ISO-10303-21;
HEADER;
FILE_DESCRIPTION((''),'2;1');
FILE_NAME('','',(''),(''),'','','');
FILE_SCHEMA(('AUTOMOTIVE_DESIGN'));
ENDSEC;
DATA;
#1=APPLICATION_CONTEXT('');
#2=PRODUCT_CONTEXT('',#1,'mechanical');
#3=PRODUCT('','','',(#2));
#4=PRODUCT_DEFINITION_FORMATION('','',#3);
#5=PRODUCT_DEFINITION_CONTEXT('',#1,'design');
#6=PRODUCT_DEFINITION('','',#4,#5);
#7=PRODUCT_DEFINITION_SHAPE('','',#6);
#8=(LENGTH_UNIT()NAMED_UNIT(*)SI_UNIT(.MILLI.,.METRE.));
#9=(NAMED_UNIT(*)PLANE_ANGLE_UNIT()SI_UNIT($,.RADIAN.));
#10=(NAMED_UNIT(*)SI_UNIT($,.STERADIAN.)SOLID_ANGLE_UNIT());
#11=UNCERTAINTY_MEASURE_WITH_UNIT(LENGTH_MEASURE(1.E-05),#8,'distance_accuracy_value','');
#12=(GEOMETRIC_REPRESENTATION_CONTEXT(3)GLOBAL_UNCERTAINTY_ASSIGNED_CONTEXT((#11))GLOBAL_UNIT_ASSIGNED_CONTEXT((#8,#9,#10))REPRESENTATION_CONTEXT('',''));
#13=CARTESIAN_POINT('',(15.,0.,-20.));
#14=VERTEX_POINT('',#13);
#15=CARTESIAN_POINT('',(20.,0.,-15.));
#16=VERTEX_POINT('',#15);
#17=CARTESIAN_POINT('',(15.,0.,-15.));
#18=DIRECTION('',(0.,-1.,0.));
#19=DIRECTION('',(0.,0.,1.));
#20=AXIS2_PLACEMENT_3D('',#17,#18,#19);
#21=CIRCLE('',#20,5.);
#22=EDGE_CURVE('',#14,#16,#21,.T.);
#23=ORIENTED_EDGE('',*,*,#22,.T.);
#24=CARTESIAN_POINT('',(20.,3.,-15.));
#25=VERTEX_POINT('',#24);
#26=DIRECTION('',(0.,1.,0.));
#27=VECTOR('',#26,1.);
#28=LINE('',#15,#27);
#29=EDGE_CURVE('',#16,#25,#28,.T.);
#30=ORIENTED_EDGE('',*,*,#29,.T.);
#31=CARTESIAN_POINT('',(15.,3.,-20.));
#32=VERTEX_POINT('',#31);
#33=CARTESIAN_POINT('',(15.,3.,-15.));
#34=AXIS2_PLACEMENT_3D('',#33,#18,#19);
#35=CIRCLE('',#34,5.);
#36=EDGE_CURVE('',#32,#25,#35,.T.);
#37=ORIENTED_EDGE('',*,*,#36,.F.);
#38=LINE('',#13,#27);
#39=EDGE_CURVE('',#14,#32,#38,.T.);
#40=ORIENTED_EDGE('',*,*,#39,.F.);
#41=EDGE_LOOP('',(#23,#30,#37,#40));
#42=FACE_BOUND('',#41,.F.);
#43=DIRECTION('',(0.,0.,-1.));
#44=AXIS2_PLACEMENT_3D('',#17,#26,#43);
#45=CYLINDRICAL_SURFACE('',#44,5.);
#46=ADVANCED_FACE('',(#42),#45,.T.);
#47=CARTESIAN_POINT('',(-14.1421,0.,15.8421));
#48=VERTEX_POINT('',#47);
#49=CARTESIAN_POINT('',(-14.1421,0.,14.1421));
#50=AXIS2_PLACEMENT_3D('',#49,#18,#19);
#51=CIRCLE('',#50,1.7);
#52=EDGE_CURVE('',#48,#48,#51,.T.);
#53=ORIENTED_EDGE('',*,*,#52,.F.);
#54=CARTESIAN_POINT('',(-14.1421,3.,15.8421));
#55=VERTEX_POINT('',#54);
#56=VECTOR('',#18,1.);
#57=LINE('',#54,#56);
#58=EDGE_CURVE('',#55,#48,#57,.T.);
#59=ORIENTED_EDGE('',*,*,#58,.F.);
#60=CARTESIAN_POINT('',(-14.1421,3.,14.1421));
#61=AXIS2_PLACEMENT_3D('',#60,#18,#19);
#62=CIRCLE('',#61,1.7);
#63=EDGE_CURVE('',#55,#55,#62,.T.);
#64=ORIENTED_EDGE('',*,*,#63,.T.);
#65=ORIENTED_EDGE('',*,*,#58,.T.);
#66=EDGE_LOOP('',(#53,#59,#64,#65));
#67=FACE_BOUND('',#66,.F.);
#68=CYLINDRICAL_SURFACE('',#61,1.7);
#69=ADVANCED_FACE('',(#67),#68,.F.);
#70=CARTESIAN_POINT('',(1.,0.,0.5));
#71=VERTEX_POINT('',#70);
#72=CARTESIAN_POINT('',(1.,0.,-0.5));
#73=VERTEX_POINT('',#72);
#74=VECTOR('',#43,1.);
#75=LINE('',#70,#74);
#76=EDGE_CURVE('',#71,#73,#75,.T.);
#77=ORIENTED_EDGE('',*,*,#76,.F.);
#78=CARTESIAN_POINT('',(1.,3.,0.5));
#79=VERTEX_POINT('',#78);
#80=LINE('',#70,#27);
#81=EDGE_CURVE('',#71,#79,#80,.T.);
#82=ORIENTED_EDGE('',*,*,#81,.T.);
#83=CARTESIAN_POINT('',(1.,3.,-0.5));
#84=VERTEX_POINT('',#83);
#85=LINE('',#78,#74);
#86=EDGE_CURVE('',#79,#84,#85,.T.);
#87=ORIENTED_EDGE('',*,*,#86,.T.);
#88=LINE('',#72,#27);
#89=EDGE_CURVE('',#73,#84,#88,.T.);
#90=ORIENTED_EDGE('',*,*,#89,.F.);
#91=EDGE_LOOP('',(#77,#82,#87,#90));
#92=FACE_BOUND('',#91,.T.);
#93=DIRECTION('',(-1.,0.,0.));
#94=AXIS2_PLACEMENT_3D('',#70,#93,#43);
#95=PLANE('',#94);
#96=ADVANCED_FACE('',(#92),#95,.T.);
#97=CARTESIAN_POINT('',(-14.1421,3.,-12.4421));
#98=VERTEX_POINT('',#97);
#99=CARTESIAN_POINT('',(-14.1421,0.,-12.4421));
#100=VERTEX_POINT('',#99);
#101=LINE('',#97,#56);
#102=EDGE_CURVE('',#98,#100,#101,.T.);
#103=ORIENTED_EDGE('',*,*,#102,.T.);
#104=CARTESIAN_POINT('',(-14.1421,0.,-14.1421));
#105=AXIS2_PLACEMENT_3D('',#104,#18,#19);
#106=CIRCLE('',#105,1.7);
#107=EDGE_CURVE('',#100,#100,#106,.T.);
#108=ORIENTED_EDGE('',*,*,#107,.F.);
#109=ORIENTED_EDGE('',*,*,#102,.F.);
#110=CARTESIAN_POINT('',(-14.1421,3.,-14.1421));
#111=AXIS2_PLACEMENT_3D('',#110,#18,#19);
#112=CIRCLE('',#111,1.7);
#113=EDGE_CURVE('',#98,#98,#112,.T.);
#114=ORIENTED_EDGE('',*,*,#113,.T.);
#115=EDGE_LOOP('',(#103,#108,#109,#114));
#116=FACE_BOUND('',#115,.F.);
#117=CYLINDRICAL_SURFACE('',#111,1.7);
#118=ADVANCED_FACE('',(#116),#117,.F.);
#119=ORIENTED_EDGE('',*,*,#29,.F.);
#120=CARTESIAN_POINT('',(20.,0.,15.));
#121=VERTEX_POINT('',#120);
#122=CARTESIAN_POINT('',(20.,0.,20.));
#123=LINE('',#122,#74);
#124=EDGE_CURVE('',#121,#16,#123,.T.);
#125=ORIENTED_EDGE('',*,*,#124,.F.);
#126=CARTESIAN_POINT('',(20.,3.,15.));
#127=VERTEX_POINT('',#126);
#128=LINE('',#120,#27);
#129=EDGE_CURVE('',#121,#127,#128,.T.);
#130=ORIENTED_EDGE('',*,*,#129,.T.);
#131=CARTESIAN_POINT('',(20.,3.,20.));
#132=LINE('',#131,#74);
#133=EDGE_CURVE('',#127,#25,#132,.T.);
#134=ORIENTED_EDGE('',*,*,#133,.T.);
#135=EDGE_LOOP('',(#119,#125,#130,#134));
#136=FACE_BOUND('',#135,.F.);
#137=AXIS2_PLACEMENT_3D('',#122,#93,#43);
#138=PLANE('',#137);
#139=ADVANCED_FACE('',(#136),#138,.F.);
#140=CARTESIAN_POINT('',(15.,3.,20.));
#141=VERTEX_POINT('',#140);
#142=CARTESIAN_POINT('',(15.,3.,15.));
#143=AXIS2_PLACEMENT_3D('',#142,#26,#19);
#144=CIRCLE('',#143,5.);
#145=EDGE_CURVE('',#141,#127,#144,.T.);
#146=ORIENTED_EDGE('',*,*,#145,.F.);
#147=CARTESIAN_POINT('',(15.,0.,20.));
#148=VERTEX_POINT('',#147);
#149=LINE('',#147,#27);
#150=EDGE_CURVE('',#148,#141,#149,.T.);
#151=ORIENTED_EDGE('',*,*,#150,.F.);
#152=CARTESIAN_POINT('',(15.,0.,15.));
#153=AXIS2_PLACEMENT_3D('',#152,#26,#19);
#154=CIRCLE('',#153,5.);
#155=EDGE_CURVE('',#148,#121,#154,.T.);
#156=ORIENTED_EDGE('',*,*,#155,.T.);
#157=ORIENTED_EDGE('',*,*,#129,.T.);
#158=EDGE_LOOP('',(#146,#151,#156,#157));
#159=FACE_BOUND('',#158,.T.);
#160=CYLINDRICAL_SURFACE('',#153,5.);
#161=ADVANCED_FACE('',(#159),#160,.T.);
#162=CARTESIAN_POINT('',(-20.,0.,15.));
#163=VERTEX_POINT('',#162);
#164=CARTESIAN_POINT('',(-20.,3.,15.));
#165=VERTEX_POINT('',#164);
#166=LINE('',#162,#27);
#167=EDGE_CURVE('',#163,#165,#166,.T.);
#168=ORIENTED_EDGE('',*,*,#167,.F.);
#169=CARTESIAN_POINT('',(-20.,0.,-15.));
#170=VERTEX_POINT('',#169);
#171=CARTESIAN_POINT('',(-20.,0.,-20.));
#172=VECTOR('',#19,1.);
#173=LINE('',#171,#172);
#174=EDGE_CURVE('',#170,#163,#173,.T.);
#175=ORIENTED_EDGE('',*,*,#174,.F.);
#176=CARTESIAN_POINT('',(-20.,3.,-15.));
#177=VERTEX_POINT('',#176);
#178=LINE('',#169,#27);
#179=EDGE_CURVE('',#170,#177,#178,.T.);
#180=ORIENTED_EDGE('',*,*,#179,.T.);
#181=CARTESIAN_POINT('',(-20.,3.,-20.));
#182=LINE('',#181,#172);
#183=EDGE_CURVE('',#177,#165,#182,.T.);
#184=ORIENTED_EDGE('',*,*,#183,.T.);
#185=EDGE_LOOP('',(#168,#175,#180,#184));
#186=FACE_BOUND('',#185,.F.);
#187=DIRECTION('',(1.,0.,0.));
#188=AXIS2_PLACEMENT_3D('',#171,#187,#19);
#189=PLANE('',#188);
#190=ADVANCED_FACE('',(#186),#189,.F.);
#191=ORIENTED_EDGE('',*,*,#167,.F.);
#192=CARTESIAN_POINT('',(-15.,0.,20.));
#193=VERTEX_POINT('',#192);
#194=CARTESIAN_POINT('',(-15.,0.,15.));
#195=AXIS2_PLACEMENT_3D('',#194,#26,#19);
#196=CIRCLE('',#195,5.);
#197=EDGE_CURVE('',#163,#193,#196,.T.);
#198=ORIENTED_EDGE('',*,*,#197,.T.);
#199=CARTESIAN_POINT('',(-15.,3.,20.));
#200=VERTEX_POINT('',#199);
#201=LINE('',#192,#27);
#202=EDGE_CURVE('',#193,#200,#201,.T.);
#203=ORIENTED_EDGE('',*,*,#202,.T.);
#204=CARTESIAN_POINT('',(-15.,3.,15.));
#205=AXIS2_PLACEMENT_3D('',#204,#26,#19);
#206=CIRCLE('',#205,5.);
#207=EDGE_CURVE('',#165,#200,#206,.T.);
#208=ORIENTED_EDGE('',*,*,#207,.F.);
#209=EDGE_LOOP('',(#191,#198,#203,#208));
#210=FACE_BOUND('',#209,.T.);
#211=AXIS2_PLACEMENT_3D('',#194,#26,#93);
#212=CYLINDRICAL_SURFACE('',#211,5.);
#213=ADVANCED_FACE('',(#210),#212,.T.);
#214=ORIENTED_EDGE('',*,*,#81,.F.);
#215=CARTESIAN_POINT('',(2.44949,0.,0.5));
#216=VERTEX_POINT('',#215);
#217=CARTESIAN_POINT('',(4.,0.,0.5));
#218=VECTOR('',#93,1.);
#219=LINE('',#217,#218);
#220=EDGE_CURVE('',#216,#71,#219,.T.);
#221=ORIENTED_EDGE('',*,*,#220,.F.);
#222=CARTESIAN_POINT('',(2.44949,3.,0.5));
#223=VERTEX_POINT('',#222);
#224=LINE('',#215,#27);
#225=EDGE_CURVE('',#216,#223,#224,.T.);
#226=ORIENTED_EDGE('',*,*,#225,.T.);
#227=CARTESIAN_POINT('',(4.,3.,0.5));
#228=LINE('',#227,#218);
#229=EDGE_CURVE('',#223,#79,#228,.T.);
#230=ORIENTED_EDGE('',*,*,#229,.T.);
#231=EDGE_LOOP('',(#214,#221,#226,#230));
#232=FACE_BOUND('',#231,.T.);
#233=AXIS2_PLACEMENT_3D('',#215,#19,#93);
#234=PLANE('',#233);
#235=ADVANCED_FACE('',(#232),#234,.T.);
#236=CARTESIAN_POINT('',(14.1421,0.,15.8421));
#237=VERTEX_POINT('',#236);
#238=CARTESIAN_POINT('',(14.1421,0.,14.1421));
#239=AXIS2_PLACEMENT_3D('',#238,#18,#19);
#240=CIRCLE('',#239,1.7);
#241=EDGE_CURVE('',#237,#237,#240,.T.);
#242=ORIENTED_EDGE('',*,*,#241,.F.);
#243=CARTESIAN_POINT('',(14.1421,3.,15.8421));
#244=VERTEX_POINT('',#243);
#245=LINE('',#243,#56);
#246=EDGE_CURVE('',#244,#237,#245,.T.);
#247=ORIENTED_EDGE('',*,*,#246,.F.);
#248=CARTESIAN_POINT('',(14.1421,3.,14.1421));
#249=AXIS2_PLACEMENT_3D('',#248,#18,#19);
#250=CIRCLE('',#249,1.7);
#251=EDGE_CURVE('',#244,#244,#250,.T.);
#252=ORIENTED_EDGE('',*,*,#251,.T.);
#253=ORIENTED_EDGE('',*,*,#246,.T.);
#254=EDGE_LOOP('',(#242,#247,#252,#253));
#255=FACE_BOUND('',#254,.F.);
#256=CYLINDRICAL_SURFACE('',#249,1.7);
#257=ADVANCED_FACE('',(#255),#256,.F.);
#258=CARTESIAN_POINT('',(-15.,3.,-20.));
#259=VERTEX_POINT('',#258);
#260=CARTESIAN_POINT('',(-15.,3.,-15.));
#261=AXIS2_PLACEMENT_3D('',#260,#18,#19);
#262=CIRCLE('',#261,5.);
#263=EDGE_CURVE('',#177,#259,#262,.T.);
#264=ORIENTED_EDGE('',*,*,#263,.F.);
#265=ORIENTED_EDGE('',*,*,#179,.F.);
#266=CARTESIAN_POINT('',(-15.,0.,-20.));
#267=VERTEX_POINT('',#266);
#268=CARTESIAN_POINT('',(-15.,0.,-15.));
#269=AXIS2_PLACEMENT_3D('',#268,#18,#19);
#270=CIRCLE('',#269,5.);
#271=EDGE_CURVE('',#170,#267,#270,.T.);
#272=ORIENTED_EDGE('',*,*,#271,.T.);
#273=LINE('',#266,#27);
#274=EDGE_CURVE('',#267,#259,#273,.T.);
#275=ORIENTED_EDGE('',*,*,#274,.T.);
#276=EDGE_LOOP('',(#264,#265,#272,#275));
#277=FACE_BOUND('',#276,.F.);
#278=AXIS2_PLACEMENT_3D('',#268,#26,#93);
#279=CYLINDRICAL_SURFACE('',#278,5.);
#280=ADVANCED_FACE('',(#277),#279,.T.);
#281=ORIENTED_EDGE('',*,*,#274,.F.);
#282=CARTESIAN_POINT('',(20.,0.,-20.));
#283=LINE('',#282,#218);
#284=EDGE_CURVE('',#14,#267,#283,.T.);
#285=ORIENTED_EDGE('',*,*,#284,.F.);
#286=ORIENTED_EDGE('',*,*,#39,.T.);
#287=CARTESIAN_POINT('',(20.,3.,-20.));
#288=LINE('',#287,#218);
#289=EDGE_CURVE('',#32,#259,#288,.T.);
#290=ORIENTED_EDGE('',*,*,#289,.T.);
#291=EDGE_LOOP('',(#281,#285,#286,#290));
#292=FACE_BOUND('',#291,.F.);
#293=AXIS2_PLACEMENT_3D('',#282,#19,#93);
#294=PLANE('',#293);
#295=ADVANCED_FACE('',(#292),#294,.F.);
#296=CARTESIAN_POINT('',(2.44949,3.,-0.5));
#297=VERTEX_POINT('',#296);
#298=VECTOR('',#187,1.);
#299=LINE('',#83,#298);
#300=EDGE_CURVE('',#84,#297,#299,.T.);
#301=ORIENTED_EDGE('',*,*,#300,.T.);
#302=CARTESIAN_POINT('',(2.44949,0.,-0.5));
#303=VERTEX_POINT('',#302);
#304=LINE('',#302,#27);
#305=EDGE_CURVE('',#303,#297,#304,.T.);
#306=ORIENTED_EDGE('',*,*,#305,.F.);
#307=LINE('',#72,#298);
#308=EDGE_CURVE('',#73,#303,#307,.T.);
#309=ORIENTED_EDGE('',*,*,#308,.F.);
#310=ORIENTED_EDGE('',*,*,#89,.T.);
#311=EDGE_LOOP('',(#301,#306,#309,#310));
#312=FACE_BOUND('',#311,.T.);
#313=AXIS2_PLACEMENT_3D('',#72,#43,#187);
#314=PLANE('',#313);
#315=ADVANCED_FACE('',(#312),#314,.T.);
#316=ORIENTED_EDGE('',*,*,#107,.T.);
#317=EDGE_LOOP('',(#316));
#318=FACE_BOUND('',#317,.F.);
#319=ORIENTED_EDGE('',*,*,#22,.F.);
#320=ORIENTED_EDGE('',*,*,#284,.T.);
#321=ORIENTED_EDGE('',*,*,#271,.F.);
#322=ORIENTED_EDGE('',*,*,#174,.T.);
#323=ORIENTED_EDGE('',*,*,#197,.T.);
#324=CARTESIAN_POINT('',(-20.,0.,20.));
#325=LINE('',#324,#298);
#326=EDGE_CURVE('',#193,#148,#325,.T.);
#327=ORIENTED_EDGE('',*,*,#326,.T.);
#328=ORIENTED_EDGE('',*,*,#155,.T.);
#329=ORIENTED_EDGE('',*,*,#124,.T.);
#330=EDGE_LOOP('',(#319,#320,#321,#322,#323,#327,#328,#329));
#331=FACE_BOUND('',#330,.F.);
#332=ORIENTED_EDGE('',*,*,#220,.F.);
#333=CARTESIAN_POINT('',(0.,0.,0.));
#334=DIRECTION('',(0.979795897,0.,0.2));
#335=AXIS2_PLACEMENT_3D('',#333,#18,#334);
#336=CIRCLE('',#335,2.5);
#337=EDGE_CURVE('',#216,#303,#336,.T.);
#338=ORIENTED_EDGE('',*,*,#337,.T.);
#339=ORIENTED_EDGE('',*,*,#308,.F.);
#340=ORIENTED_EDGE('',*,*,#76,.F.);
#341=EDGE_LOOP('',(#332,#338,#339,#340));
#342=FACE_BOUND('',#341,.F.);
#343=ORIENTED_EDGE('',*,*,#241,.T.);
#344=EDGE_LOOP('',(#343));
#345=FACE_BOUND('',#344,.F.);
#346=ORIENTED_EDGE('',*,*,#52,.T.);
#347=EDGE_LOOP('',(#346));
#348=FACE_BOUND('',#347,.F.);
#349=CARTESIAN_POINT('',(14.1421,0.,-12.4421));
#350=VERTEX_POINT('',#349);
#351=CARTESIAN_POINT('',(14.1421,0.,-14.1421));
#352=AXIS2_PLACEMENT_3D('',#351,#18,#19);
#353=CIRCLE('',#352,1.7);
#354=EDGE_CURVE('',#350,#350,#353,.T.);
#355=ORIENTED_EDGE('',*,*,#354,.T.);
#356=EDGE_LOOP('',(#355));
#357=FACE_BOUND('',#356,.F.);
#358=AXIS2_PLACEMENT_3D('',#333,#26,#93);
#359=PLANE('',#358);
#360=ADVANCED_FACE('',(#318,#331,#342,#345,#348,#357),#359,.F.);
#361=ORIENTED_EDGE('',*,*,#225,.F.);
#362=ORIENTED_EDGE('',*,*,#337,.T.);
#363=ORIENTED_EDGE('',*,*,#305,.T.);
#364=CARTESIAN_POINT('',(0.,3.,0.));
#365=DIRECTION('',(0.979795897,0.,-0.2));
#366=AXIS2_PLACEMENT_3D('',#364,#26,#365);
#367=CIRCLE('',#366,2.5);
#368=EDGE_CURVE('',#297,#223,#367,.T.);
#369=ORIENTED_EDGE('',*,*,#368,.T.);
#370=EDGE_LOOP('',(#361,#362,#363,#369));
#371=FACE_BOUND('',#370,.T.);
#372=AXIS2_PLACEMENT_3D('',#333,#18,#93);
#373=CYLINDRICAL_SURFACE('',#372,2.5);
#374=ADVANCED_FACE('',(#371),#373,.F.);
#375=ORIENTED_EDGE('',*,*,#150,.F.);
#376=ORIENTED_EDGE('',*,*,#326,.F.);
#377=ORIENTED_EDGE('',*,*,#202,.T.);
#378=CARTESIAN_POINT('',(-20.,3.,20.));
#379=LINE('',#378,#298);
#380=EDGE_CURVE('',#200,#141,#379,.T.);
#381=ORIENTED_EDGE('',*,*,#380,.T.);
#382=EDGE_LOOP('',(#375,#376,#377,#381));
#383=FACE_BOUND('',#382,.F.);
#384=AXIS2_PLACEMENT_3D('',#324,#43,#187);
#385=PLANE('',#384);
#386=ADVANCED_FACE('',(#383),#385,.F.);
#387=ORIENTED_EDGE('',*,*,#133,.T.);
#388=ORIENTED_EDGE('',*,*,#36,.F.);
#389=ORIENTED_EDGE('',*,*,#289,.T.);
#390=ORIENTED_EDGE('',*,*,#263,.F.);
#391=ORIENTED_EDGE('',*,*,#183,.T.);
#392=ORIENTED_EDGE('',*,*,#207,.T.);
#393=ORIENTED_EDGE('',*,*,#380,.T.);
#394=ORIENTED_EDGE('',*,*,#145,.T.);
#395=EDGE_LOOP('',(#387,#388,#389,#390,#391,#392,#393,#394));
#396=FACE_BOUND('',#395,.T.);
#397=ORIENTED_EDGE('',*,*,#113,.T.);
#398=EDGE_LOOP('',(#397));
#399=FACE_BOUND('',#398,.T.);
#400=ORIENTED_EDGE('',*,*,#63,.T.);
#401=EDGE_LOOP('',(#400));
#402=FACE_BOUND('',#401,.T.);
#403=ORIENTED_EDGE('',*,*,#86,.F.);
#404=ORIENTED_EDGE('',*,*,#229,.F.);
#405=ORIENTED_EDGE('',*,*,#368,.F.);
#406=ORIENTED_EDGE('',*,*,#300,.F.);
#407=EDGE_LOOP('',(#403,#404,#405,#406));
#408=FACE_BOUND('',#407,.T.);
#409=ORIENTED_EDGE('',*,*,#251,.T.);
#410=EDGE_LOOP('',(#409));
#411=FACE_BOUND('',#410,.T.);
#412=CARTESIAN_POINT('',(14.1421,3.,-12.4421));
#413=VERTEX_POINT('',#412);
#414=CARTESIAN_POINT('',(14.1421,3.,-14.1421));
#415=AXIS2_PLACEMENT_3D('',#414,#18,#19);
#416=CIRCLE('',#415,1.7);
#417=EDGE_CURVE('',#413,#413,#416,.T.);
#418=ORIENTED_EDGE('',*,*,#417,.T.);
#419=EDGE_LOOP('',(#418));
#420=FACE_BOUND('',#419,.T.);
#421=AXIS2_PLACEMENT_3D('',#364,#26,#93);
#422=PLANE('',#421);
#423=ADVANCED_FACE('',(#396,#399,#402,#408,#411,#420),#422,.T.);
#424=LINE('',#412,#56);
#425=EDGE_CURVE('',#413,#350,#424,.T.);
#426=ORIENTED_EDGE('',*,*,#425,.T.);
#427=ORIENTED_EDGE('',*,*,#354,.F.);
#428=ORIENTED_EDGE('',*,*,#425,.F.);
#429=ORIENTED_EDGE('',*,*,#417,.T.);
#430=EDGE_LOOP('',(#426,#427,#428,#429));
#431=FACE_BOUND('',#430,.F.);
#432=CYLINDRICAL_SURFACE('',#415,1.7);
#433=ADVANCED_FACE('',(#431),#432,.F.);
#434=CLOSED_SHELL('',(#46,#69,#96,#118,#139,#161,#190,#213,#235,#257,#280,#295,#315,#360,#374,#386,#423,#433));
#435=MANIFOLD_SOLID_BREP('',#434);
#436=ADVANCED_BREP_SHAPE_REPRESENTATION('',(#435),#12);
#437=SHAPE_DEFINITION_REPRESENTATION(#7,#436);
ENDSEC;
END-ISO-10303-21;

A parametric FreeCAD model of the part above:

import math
import FreeCAD as App
import Part
import Sketcher
Q = App.Units.Quantity


def edges_at(feature, points):
    """Names of the edges that pass closest to the given points."""
    edges = feature.Shape.Edges
    near = lambda p: min(range(len(edges)), key=lambda i: edges[i].distToShape(Part.Vertex(*p))[0])
    return sorted({f"Edge{near(p) + 1}" for p in points})


def add_polygon(sketch, points):
    """Adds a closed chain of lines whose ends are joined by coincident constraints."""
    first, n = sketch.GeometryCount, len(points)
    for a, b in zip(points, points[1:] + points[:1]):
        sketch.addGeometry(Part.LineSegment(App.Vector(*a, 0), App.Vector(*b, 0)), False)
    for i in range(n):
        sketch.addConstraint(Sketcher.Constraint("Coincident", first + i, 2, first + (i + 1) % n, 1))

doc = App.newDocument("Part")
body = doc.addObject("PartDesign::Body", "Body")

# Sketch on XZ plane
sketch1 = body.newObject("Sketcher::SketchObject", "Sketch")
sketch1.AttachmentSupport = (doc.getObject("XZ_Plane"), [""])
sketch1.MapMode = "FlatFace"
add_polygon(sketch1, [(-20, -20), (-20, 20), (20, 20), (20, -20)])  # lines 0-3
sketch1.addGeometry(Part.LineSegment(App.Vector(1, 0.5, 0), App.Vector(2.44949, 0.5, 0)), False)  # 4
sketch1.addGeometry(Part.ArcOfCircle(Part.Circle(App.Vector(0, 0, 0), App.Vector(0, 0, 1), 2.5), math.radians(11.536959), math.radians(348.463041)), False)  # 5
sketch1.addGeometry(Part.LineSegment(App.Vector(2.44949, -0.5, 0), App.Vector(1, -0.5, 0)), False)  # 6
sketch1.addGeometry(Part.LineSegment(App.Vector(1, -0.5, 0), App.Vector(1, 0.5, 0)), False)  # 7
sketch1.addConstraint(Sketcher.Constraint("Coincident", 4, 2, 5, 1))
sketch1.addConstraint(Sketcher.Constraint("Coincident", 5, 2, 6, 1))
sketch1.addConstraint(Sketcher.Constraint("Coincident", 6, 2, 7, 1))
sketch1.addConstraint(Sketcher.Constraint("Coincident", 7, 2, 4, 1))
sketch1.addConstraint(Sketcher.Constraint("Vertical", 0))
sketch1.addConstraint(Sketcher.Constraint("Horizontal", 1))
sketch1.addConstraint(Sketcher.Constraint("Vertical", 2))
sketch1.addConstraint(Sketcher.Constraint("Horizontal", 3))
sketch1.addConstraint(Sketcher.Constraint("Horizontal", 4))
sketch1.addConstraint(Sketcher.Constraint("Horizontal", 6))
sketch1.addConstraint(Sketcher.Constraint("Vertical", 7))
sketch1.addConstraint(Sketcher.Constraint("Coincident", 5, 3, -1, 1))
sketch1.addConstraint(Sketcher.Constraint("Symmetric", 0, 2, 2, 2, -1, 1))
sketch1.addConstraint(Sketcher.Constraint("Vertical", 4, 2, 5, 2))
sketch1.addConstraint(Sketcher.Constraint("Equal", 3, 0))
sketch1.addConstraint(Sketcher.Constraint("Radius", 5, Q("2.5 mm")))
sketch1.addConstraint(Sketcher.Constraint("DistanceX", 1, 1, 1, 2, Q("40 mm")))
sketch1.addConstraint(Sketcher.Constraint("DistanceY", 7, 1, 7, 2, Q("1 mm")))
sketch1.addConstraint(Sketcher.Constraint("DistanceX", -1, 1, 6, 2, Q("1 mm")))
pad1 = body.newObject("PartDesign::Pad", "Pad")
pad1.Profile = sketch1
pad1.Length = 3
pad1.Reversed = True

# Sketch on XZ plane
sketch2 = body.newObject("Sketcher::SketchObject", "Sketch001")
sketch2.AttachmentSupport = (doc.getObject("XZ_Plane"), [""])
sketch2.MapMode = "FlatFace"
sketch2.AttachmentOffset = App.Placement(App.Vector(0, 0, -3), App.Rotation())
sketch2.addGeometry(Part.Circle(App.Vector(-14.1421, 14.1421, 0), App.Vector(0, 0, 1), 1.7), False)
sketch2.addGeometry(Part.Circle(App.Vector(14.1421, 14.1421, 0), App.Vector(0, 0, 1), 1.7), False)
sketch2.addGeometry(Part.Circle(App.Vector(14.1421, -14.1421, 0), App.Vector(0, 0, 1), 1.7), False)
sketch2.addGeometry(Part.Circle(App.Vector(-14.1421, -14.1421, 0), App.Vector(0, 0, 1), 1.7), False)
sketch2.addConstraint(Sketcher.Constraint("Equal", 0, 1))
sketch2.addConstraint(Sketcher.Constraint("Equal", 1, 2))
sketch2.addConstraint(Sketcher.Constraint("Equal", 2, 3))
sketch2.addConstraint(Sketcher.Constraint("Symmetric", 0, 3, 2, 3, -1, 1))
sketch2.addConstraint(Sketcher.Constraint("Symmetric", 1, 3, 3, 3, -1, 1))
sketch2.addConstraint(Sketcher.Constraint("Symmetric", 0, 3, 1, 3, -2))
sketch2.addConstraint(Sketcher.Constraint("Diameter", 0, Q("3.4 mm")))
sketch2.addConstraint(Sketcher.Constraint("DistanceX", 0, 3, -1, 1, Q("14.142 mm")))
sketch2.addConstraint(Sketcher.Constraint("DistanceY", -1, 1, 0, 3, Q("14.142 mm")))
doc.recompute()
hole = body.newObject("PartDesign::Hole", "Hole")
hole.Profile = sketch2
hole.ThreadType = "None"
hole.Diameter = 3.4
hole.DepthType = "ThroughAll"
hole.Reversed = True
doc.recompute()

fillet = body.newObject("PartDesign::Fillet", "Fillet")
fillet.Base = (hole, edges_at(hole, [
    (-20, 1.5, 20),
    (-20, 1.5, -20),
    (20, 1.5, -20),
    (20, 1.5, 20),
]))
fillet.Radius = 5

doc.recompute()
